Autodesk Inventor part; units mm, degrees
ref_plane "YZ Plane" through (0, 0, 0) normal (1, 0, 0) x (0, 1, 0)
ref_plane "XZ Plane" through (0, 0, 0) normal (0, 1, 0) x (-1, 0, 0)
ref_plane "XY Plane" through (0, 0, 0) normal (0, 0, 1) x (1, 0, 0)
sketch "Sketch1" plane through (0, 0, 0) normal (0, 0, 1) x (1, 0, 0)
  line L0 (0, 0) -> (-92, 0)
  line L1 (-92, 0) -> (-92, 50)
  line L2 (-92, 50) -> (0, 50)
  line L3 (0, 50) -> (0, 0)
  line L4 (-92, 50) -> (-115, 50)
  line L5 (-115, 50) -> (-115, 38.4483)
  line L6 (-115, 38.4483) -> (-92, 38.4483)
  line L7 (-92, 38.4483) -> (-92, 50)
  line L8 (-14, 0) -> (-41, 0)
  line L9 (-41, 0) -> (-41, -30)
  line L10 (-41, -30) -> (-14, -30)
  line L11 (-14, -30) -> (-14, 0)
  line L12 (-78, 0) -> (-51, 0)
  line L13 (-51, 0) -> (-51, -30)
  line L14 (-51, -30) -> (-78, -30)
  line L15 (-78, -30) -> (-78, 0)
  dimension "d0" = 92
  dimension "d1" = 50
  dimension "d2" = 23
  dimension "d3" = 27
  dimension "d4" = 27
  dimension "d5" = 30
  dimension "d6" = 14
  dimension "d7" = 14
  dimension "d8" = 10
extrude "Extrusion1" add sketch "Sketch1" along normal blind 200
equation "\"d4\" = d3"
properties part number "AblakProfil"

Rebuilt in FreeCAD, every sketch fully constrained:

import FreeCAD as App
import Part
import Sketcher

V = App.Vector
Q = App.Units.Quantity

doc = App.newDocument("Part")
body = doc.addObject("PartDesign::Body", "Body")

# Sketch on XY plane
sketch1 = doc.addObject("Sketcher::SketchObject", "Sketch")
body.addObject(sketch1)
sketch1.AttachmentSupport = (doc.XY_Plane, [""])
sketch1.MapMode = "FlatFace"
sketch1.addGeometry(Part.LineSegment(V(-14, 0, 0), V(0, 0, 0)), False)
sketch1.addGeometry(Part.LineSegment(V(0, 0, 0), V(0, 50, 0)), False)
sketch1.addGeometry(Part.LineSegment(V(0, 50, 0), V(-115, 50, 0)), False)
sketch1.addGeometry(Part.LineSegment(V(-115, 50, 0), V(-115, 38, 0)), False)
sketch1.addGeometry(Part.LineSegment(V(-115, 38, 0), V(-92, 38, 0)), False)
sketch1.addGeometry(Part.LineSegment(V(-92, 38, 0), V(-92, 0, 0)), False)
sketch1.addGeometry(Part.LineSegment(V(-92, 0, 0), V(-78, 0, 0)), False)
sketch1.addGeometry(Part.LineSegment(V(-78, 0, 0), V(-78, -30, 0)), False)
sketch1.addGeometry(Part.LineSegment(V(-78, -30, 0), V(-51, -30, 0)), False)
sketch1.addGeometry(Part.LineSegment(V(-51, -30, 0), V(-51, 0, 0)), False)
sketch1.addGeometry(Part.LineSegment(V(-51, 0, 0), V(-41, 0, 0)), False)
sketch1.addGeometry(Part.LineSegment(V(-41, 0, 0), V(-41, -30, 0)), False)
sketch1.addGeometry(Part.LineSegment(V(-41, -30, 0), V(-14, -30, 0)), False)
sketch1.addGeometry(Part.LineSegment(V(-14, -30, 0), V(-14, 0, 0)), False)
sketch1.addConstraint(Sketcher.Constraint("Coincident", 0, 2, 1, 1))
sketch1.addConstraint(Sketcher.Constraint("Coincident", 1, 2, 2, 1))
sketch1.addConstraint(Sketcher.Constraint("Coincident", 2, 2, 3, 1))
sketch1.addConstraint(Sketcher.Constraint("Coincident", 3, 2, 4, 1))
sketch1.addConstraint(Sketcher.Constraint("Coincident", 4, 2, 5, 1))
sketch1.addConstraint(Sketcher.Constraint("Coincident", 5, 2, 6, 1))
sketch1.addConstraint(Sketcher.Constraint("Coincident", 6, 2, 7, 1))
sketch1.addConstraint(Sketcher.Constraint("Coincident", 7, 2, 8, 1))
sketch1.addConstraint(Sketcher.Constraint("Coincident", 8, 2, 9, 1))
sketch1.addConstraint(Sketcher.Constraint("Coincident", 9, 2, 10, 1))
sketch1.addConstraint(Sketcher.Constraint("Coincident", 10, 2, 11, 1))
sketch1.addConstraint(Sketcher.Constraint("Coincident", 11, 2, 12, 1))
sketch1.addConstraint(Sketcher.Constraint("Coincident", 12, 2, 13, 1))
sketch1.addConstraint(Sketcher.Constraint("Coincident", 13, 2, 0, 1))
sketch1.addConstraint(Sketcher.Constraint("Horizontal", 0))
sketch1.addConstraint(Sketcher.Constraint("Vertical", 1))
sketch1.addConstraint(Sketcher.Constraint("Horizontal", 2))
sketch1.addConstraint(Sketcher.Constraint("Vertical", 3))
sketch1.addConstraint(Sketcher.Constraint("Horizontal", 4))
sketch1.addConstraint(Sketcher.Constraint("Vertical", 5))
sketch1.addConstraint(Sketcher.Constraint("Horizontal", 6))
sketch1.addConstraint(Sketcher.Constraint("Vertical", 7))
sketch1.addConstraint(Sketcher.Constraint("Horizontal", 8))
sketch1.addConstraint(Sketcher.Constraint("Vertical", 9))
sketch1.addConstraint(Sketcher.Constraint("Horizontal", 10))
sketch1.addConstraint(Sketcher.Constraint("Vertical", 11))
sketch1.addConstraint(Sketcher.Constraint("Horizontal", 12))
sketch1.addConstraint(Sketcher.Constraint("Vertical", 13))
sketch1.addConstraint(Sketcher.Constraint("Coincident", 0, 2, -1, 1))
sketch1.addConstraint(Sketcher.Constraint("PointOnObject", 5, 2, -1))
sketch1.addConstraint(Sketcher.Constraint("PointOnObject", 9, 2, -1))
sketch1.addConstraint(Sketcher.Constraint("Horizontal", 8, 2, 11, 2))
sketch1.addConstraint(Sketcher.Constraint("Equal", 0, 6))
sketch1.addConstraint(Sketcher.Constraint("Equal", 8, 12))
sketch1.addConstraint(Sketcher.Constraint("DistanceX", 0, 1, 0, 2, Q("14 mm")))
sketch1.addConstraint(Sketcher.Constraint("DistanceX", 4, 1, 4, 2, Q("23 mm")))
sketch1.addConstraint(Sketcher.Constraint("DistanceX", 8, 1, 8, 2, Q("27 mm")))
sketch1.addConstraint(Sketcher.Constraint("DistanceX", 10, 1, 10, 2, Q("10 mm")))
sketch1.addConstraint(Sketcher.Constraint("DistanceY", 1, 1, 1, 2, Q("50 mm")))
sketch1.addConstraint(Sketcher.Constraint("DistanceY", 7, 2, 7, 1, Q("30 mm")))
sketch1.addConstraint(Sketcher.Constraint("DistanceY", 3, 2, 3, 1, Q("11.5517 mm")))
pad1 = doc.addObject("PartDesign::Pad", "Pad")
body.addObject(pad1)
pad1.Profile = sketch1
pad1.Length = 200

doc.recompute()
